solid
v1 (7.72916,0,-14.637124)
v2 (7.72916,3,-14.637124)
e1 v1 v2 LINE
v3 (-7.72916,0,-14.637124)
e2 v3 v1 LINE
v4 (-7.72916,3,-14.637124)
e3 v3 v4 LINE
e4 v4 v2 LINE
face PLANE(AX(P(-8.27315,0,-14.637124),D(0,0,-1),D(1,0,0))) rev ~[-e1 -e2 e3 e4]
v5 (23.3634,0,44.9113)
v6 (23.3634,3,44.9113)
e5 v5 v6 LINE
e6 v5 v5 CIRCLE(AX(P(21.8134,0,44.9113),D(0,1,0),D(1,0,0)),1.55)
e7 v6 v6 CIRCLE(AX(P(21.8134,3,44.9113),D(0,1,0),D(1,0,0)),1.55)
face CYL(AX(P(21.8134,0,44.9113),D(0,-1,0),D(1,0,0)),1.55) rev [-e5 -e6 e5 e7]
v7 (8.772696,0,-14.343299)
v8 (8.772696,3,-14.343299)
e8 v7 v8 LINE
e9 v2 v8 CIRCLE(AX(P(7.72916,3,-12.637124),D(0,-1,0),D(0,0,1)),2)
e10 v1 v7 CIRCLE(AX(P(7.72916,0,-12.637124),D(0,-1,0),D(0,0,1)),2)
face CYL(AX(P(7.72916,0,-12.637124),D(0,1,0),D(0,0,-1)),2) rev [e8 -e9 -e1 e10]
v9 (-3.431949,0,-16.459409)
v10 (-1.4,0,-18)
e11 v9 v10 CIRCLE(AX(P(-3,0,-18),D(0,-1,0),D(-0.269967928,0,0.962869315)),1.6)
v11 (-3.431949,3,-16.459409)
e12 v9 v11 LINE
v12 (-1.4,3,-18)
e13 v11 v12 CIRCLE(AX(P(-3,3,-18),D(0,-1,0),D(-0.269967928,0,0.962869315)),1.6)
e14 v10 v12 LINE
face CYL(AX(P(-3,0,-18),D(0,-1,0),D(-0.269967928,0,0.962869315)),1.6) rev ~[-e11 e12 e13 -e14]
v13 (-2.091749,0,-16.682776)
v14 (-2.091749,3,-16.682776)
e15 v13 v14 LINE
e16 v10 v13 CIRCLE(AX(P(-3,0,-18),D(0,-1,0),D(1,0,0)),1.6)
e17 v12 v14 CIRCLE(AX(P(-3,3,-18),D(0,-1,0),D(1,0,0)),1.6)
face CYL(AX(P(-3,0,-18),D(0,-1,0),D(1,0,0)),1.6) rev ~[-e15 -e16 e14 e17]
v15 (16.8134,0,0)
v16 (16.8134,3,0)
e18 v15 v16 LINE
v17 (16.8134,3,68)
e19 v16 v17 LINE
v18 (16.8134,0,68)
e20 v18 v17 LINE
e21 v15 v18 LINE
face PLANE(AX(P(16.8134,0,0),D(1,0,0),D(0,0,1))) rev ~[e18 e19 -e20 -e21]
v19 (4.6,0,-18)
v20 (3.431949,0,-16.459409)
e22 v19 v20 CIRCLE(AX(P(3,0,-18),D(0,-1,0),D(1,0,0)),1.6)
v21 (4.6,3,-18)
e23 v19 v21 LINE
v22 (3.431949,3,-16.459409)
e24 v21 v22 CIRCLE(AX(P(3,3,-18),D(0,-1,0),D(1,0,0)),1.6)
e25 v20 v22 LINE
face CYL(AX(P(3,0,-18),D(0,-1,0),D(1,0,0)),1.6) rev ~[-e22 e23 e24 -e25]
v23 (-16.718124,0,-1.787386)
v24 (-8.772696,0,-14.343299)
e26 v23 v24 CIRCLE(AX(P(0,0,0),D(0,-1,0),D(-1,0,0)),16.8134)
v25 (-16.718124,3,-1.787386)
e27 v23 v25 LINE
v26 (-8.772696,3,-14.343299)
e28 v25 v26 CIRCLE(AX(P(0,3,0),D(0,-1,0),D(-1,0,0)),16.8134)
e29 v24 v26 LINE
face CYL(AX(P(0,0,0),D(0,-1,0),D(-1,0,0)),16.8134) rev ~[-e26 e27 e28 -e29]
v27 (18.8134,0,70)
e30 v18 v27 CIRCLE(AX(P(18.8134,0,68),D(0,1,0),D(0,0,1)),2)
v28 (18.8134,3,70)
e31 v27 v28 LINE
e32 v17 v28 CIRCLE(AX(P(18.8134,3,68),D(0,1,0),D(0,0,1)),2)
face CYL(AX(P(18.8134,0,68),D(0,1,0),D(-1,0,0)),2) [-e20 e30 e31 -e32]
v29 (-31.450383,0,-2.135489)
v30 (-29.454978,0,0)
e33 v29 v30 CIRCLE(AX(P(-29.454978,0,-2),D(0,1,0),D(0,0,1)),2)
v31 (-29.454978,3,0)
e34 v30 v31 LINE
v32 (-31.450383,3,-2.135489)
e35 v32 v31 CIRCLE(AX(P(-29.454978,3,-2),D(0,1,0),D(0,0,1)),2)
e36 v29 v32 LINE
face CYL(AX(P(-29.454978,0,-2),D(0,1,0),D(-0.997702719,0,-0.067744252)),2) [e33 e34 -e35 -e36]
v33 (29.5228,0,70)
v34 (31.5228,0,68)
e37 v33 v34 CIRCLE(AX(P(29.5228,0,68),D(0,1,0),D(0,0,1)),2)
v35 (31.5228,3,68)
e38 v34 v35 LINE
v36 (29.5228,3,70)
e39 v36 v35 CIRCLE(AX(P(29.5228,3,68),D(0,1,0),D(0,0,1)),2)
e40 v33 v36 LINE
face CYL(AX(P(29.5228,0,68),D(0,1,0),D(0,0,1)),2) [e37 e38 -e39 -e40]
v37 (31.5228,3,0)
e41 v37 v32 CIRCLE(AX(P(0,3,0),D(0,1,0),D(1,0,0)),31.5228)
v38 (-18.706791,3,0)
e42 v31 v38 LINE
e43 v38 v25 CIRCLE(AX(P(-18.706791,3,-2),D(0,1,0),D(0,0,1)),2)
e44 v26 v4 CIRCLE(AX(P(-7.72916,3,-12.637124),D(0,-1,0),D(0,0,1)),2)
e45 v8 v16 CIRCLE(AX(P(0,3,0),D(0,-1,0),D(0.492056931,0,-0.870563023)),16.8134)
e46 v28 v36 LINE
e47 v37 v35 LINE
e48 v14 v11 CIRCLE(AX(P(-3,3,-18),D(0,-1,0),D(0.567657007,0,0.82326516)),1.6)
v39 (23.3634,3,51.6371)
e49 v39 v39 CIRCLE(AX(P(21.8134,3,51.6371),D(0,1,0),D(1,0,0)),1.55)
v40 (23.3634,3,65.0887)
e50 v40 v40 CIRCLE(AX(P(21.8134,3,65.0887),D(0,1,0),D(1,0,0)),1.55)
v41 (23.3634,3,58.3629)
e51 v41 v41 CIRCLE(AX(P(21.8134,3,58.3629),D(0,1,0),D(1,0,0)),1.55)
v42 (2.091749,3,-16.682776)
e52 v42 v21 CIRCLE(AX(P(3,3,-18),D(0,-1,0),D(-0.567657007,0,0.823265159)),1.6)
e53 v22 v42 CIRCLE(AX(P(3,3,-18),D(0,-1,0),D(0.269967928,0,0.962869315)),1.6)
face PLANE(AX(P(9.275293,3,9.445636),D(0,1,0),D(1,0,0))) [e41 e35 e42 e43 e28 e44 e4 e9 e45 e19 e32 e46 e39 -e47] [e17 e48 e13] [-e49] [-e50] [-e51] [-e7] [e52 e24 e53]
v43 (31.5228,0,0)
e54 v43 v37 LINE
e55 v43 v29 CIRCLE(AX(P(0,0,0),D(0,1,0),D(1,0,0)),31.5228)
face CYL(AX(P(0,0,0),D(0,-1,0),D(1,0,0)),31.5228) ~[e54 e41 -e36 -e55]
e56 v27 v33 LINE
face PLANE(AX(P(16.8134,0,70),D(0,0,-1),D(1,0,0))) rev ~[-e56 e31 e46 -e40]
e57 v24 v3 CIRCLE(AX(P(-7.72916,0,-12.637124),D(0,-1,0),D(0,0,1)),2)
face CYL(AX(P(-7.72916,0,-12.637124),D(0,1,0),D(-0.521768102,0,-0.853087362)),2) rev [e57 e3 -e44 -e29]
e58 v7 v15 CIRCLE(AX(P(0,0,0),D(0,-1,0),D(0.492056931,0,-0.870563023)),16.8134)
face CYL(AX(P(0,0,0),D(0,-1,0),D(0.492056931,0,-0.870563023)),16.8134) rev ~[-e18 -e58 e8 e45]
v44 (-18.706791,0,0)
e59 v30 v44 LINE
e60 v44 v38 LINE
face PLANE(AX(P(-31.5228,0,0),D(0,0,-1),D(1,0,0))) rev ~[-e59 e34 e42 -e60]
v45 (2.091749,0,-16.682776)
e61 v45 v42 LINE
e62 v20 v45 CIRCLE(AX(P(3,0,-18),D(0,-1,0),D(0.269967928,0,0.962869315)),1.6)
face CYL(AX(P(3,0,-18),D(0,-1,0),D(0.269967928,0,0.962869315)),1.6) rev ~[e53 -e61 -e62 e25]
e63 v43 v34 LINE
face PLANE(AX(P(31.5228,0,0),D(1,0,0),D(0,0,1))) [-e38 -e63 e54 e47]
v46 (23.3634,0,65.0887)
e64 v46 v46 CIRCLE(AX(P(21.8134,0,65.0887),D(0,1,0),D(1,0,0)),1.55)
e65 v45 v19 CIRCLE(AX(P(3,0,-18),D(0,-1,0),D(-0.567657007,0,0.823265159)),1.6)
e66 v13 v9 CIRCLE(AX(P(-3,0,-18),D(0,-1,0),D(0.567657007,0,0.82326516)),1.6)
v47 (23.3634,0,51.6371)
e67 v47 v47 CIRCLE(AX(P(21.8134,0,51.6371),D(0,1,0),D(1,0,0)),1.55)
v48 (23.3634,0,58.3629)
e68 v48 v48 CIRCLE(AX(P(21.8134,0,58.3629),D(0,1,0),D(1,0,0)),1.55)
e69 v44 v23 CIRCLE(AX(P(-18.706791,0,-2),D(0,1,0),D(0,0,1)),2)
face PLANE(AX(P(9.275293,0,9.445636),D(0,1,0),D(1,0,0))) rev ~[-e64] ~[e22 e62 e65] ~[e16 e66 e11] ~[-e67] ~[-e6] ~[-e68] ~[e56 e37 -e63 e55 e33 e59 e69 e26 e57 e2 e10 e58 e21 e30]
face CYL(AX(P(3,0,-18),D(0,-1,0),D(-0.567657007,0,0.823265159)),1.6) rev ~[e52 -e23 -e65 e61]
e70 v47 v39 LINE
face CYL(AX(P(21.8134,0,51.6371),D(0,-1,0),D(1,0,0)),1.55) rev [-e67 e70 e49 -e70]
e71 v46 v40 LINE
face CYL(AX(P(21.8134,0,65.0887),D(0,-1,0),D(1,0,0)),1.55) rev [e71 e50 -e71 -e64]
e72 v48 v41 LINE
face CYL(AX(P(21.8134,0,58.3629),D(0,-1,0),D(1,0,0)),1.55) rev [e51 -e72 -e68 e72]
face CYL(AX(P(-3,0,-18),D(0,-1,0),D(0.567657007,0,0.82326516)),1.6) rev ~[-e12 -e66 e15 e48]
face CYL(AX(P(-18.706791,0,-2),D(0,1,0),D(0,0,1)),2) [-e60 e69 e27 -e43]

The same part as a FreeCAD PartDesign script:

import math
import FreeCAD as App
import Part
import Sketcher

V = App.Vector
Q = App.Units.Quantity


def edges_at(feature, points):
    """Names of the edges that pass closest to the given points."""
    edges = feature.Shape.Edges
    near = lambda p: min(range(len(edges)), key=lambda i: edges[i].distToShape(Part.Vertex(*p))[0])
    return sorted({f"Edge{near(p) + 1}" for p in points})

doc = App.newDocument("Part")
body = doc.addObject("PartDesign::Body", "Body")

# Sketch on XZ plane
sketch1 = body.newObject("Sketcher::SketchObject", "Sketch")
sketch1.AttachmentSupport = (doc.getObject("XZ_Plane"), [""])
sketch1.MapMode = "FlatFace"
sketch1.addGeometry(Part.LineSegment(V(16.8, 0, 0), V(16.8, 70, 0)), False)
sketch1.addGeometry(Part.LineSegment(V(16.8, 70, 0), V(31.5, 70, 0)), False)
sketch1.addGeometry(Part.LineSegment(V(31.5, 70, 0), V(31.5, 0, 0)), False)
sketch1.addGeometry(Part.ArcOfCircle(Part.Circle(V(0, 0, 0), V(0, 0, 1), 31.5), math.radians(180), math.radians(360)), False)
sketch1.addGeometry(Part.LineSegment(V(-31.5, 0, 0), V(-16.8, 0, 0)), False)
sketch1.addGeometry(Part.ArcOfCircle(Part.Circle(V(0, 0, 0), V(0, 0, 1), 16.8), math.radians(180), math.radians(241)), False)
sketch1.addGeometry(Part.LineSegment(V(-8.3, -14.6, 0), V(8.3, -14.6, 0)), False)
sketch1.addGeometry(Part.ArcOfCircle(Part.Circle(V(0, 0, 0), V(0, 0, 1), 16.8), math.radians(-61), math.radians(0)), False)
sketch1.addGeometry(Part.ArcOfCircle(Part.Circle(V(3, -18, 0), V(0, 0, 1), 1.6), math.radians(0), math.radians(74)), False)
sketch1.addGeometry(Part.ArcOfCircle(Part.Circle(V(3, -18, 0), V(0, 0, 1), 1.6), math.radians(74), math.radians(125)), False)
sketch1.addGeometry(Part.ArcOfCircle(Part.Circle(V(3, -18, 0), V(0, 0, 1), 1.6), math.radians(125), math.radians(360)), False)
sketch1.addGeometry(Part.ArcOfCircle(Part.Circle(V(-3, -18, 0), V(0, 0, 1), 1.6), math.radians(0), math.radians(55)), False)
sketch1.addGeometry(Part.ArcOfCircle(Part.Circle(V(-3, -18, 0), V(0, 0, 1), 1.6), math.radians(55), math.radians(106)), False)
sketch1.addGeometry(Part.ArcOfCircle(Part.Circle(V(-3, -18, 0), V(0, 0, 1), 1.6), math.radians(106), math.radians(360)), False)
sketch1.addGeometry(Part.Circle(V(21.8, 65.1, 0), V(0, 0, 1), 1.6), False)
sketch1.addGeometry(Part.Circle(V(21.8, 58.4, 0), V(0, 0, 1), 1.6), False)
sketch1.addGeometry(Part.Circle(V(21.8, 51.6, 0), V(0, 0, 1), 1.6), False)
sketch1.addGeometry(Part.Circle(V(21.8, 44.9, 0), V(0, 0, 1), 1.6), False)
sketch1.addConstraint(Sketcher.Constraint("Coincident", 0, 2, 1, 1))
sketch1.addConstraint(Sketcher.Constraint("Coincident", 1, 2, 2, 1))
sketch1.addConstraint(Sketcher.Constraint("Tangent", 2, 2, 3, 2))
sketch1.addConstraint(Sketcher.Constraint("Coincident", 3, 1, 4, 1))
sketch1.addConstraint(Sketcher.Constraint("Coincident", 4, 2, 5, 1))
sketch1.addConstraint(Sketcher.Constraint("Coincident", 5, 2, 6, 1))
sketch1.addConstraint(Sketcher.Constraint("Coincident", 6, 2, 7, 1))
sketch1.addConstraint(Sketcher.Constraint("Tangent", 7, 2, 0, 1))
sketch1.addConstraint(Sketcher.Constraint("Tangent", 8, 2, 9, 1))
sketch1.addConstraint(Sketcher.Constraint("Tangent", 9, 2, 10, 1))
sketch1.addConstraint(Sketcher.Constraint("Tangent", 10, 2, 8, 1))
sketch1.addConstraint(Sketcher.Constraint("Tangent", 11, 2, 12, 1))
sketch1.addConstraint(Sketcher.Constraint("Tangent", 12, 2, 13, 1))
sketch1.addConstraint(Sketcher.Constraint("Tangent", 13, 2, 11, 1))
sketch1.addConstraint(Sketcher.Constraint("Vertical", 0))
sketch1.addConstraint(Sketcher.Constraint("Horizontal", 1))
sketch1.addConstraint(Sketcher.Constraint("Vertical", 2))
sketch1.addConstraint(Sketcher.Constraint("Horizontal", 4))
sketch1.addConstraint(Sketcher.Constraint("Horizontal", 6))
sketch1.addConstraint(Sketcher.Constraint("Coincident", 3, 3, -1, 1))
sketch1.addConstraint(Sketcher.Constraint("Coincident", 5, 3, -1, 1))
sketch1.addConstraint(Sketcher.Constraint("Coincident", 7, 3, -1, 1))
sketch1.addConstraint(Sketcher.Constraint("Equal", 5, 7))
sketch1.addConstraint(Sketcher.Constraint("Equal", 10, 11))
sketch1.addConstraint(Sketcher.Constraint("Equal", 14, 15))
sketch1.addConstraint(Sketcher.Constraint("Equal", 15, 16))
sketch1.addConstraint(Sketcher.Constraint("Equal", 16, 17))
sketch1.addConstraint(Sketcher.Constraint("Symmetric", 8, 3, 11, 3, -2))
sketch1.addConstraint(Sketcher.Constraint("PointOnObject", 3, 1, -1))
sketch1.addConstraint(Sketcher.Constraint("Horizontal", 13, 3, 10, 2))
sketch1.addConstraint(Sketcher.Constraint("Horizontal", 9, 2, 11, 2))
sketch1.addConstraint(Sketcher.Constraint("Horizontal", 8, 2, 12, 2))
sketch1.addConstraint(Sketcher.Constraint("Horizontal", 10, 2, 13, 2))
sketch1.addConstraint(Sketcher.Constraint("Vertical", 14, 3, 15, 3))
sketch1.addConstraint(Sketcher.Constraint("Vertical", 15, 3, 16, 3))
sketch1.addConstraint(Sketcher.Constraint("Vertical", 16, 3, 17, 3))
sketch1.addConstraint(Sketcher.Constraint("Diameter", 14, Q("3.1 mm")))
sketch1.addConstraint(Sketcher.Constraint("Radius", 8, Q("1.6 mm")))
sketch1.addConstraint(Sketcher.Constraint("DistanceY", 0, 1, 0, 2, Q("70 mm")))
sketch1.addConstraint(Sketcher.Constraint("DistanceX", -1, 1, 8, 3, Q("3 mm")))
sketch1.addConstraint(Sketcher.Constraint("DistanceY", 8, 3, -1, 1, Q("18 mm")))
sketch1.addConstraint(Sketcher.Constraint("DistanceX", 0, 2, 14, 3, Q("5 mm")))
sketch1.addConstraint(Sketcher.Constraint("Radius", 3, Q("31.5228 mm")))
sketch1.addConstraint(Sketcher.Constraint("Radius", 5, Q("16.8134 mm")))
sketch1.addConstraint(Sketcher.Constraint("DistanceX", 6, 1, 6, 2, Q("16.5463 mm")))
sketch1.addConstraint(Sketcher.Constraint("DistanceY", -1, 1, 14, 3, Q("65.0887 mm")))
sketch1.addConstraint(Sketcher.Constraint("DistanceY", -1, 1, 15, 3, Q("58.3629 mm")))
sketch1.addConstraint(Sketcher.Constraint("DistanceY", -1, 1, 16, 3, Q("51.6371 mm")))
sketch1.addConstraint(Sketcher.Constraint("DistanceY", -1, 1, 17, 3, Q("44.9113 mm")))
sketch1.addConstraint(Sketcher.Constraint("DistanceX", 8, 2, 6, 2, Q("4.841201 mm")))
sketch1.addConstraint(Sketcher.Constraint("DistanceX", 9, 2, 8, 2, Q("1.3402 mm")))
pad1 = body.newObject("PartDesign::Pad", "Pad")
pad1.Profile = sketch1
pad1.Length = 3
pad1.Reversed = True
doc.recompute()

fillet = body.newObject("PartDesign::Fillet", "Fillet")
fillet.Base = (pad1, edges_at(pad1, [
    (-16.813, 1.5, 0),
    (-31.523, 1.5, 0),
    (31.523, 1.5, 70),
    (16.813, 1.5, 70),
    (8.273, 1.5, -14.637),
    (-8.273, 1.5, -14.637),
]))
fillet.Radius = 2

doc.recompute()
